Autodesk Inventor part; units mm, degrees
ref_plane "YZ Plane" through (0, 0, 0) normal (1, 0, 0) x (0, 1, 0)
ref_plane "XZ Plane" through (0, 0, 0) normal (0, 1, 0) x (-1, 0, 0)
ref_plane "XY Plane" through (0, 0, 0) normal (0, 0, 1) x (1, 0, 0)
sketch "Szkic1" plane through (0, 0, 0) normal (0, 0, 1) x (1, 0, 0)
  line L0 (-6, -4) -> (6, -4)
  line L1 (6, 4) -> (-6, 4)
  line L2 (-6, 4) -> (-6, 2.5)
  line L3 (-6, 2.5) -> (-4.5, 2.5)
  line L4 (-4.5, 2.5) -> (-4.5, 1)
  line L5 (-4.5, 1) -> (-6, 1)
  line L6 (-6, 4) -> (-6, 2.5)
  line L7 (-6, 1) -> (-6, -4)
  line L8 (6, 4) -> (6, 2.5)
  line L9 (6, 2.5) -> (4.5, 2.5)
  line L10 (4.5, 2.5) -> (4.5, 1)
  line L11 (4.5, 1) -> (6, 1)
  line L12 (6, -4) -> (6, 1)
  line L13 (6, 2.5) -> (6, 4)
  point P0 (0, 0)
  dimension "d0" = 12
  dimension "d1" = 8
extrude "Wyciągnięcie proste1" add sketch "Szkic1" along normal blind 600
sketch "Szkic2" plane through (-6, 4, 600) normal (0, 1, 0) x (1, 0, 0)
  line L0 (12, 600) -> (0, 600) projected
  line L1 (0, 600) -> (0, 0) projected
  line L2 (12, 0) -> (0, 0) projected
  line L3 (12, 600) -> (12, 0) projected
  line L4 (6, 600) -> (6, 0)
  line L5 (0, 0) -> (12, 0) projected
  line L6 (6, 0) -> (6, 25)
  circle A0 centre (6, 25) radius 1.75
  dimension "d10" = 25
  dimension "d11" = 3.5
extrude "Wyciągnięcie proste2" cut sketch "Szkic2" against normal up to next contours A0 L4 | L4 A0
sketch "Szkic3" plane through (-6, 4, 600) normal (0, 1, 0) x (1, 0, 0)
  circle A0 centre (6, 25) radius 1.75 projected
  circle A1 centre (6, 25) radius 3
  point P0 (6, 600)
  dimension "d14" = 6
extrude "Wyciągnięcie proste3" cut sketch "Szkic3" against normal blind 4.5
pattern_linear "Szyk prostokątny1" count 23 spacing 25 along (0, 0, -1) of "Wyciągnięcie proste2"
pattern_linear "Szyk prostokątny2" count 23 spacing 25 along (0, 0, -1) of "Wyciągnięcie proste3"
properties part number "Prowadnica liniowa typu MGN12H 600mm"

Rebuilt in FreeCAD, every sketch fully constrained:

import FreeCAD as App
import Part
import Sketcher

doc = App.newDocument("Part")
body = doc.addObject("PartDesign::Body", "Body")

# Sketch on XY plane
sketch1 = body.newObject("Sketcher::SketchObject", "Sketch")
sketch1.AttachmentSupport = (doc.getObject("XY_Plane"), [""])
sketch1.MapMode = "FlatFace"
sketch1.addGeometry(Part.LineSegment(App.Vector(-6, 1, 0), App.Vector(-6, -4, 0)), False)
sketch1.addGeometry(Part.LineSegment(App.Vector(-6, -4, 0), App.Vector(6, -4, 0)), False)
sketch1.addGeometry(Part.LineSegment(App.Vector(6, -4, 0), App.Vector(6, 1, 0)), False)
sketch1.addGeometry(Part.LineSegment(App.Vector(6, 1, 0), App.Vector(4.5, 1, 0)), False)
sketch1.addGeometry(Part.LineSegment(App.Vector(4.5, 1, 0), App.Vector(4.5, 2.5, 0)), False)
sketch1.addGeometry(Part.LineSegment(App.Vector(4.5, 2.5, 0), App.Vector(6, 2.5, 0)), False)
sketch1.addGeometry(Part.LineSegment(App.Vector(6, 2.5, 0), App.Vector(6, 4, 0)), False)
sketch1.addGeometry(Part.LineSegment(App.Vector(6, 4, 0), App.Vector(-6, 4, 0)), False)
sketch1.addGeometry(Part.LineSegment(App.Vector(-6, 4, 0), App.Vector(-6, 2.5, 0)), False)
sketch1.addGeometry(Part.LineSegment(App.Vector(-6, 2.5, 0), App.Vector(-4.5, 2.5, 0)), False)
sketch1.addGeometry(Part.LineSegment(App.Vector(-4.5, 2.5, 0), App.Vector(-4.5, 1, 0)), False)
sketch1.addGeometry(Part.LineSegment(App.Vector(-4.5, 1, 0), App.Vector(-6, 1, 0)), False)
sketch1.addConstraint(Sketcher.Constraint("Coincident", 0, 2, 1, 1))
sketch1.addConstraint(Sketcher.Constraint("Coincident", 1, 2, 2, 1))
sketch1.addConstraint(Sketcher.Constraint("Coincident", 2, 2, 3, 1))
sketch1.addConstraint(Sketcher.Constraint("Coincident", 3, 2, 4, 1))
sketch1.addConstraint(Sketcher.Constraint("Coincident", 4, 2, 5, 1))
sketch1.addConstraint(Sketcher.Constraint("Coincident", 5, 2, 6, 1))
sketch1.addConstraint(Sketcher.Constraint("Coincident", 6, 2, 7, 1))
sketch1.addConstraint(Sketcher.Constraint("Coincident", 7, 2, 8, 1))
sketch1.addConstraint(Sketcher.Constraint("Coincident", 8, 2, 9, 1))
sketch1.addConstraint(Sketcher.Constraint("Coincident", 9, 2, 10, 1))
sketch1.addConstraint(Sketcher.Constraint("Coincident", 10, 2, 11, 1))
sketch1.addConstraint(Sketcher.Constraint("Coincident", 11, 2, 0, 1))
sketch1.addConstraint(Sketcher.Constraint("Vertical", 0))
sketch1.addConstraint(Sketcher.Constraint("Horizontal", 1))
sketch1.addConstraint(Sketcher.Constraint("Vertical", 2))
sketch1.addConstraint(Sketcher.Constraint("Horizontal", 3))
sketch1.addConstraint(Sketcher.Constraint("Vertical", 4))
sketch1.addConstraint(Sketcher.Constraint("Horizontal", 5))
sketch1.addConstraint(Sketcher.Constraint("Vertical", 6))
sketch1.addConstraint(Sketcher.Constraint("Horizontal", 7))
sketch1.addConstraint(Sketcher.Constraint("Vertical", 8))
sketch1.addConstraint(Sketcher.Constraint("Horizontal", 9))
sketch1.addConstraint(Sketcher.Constraint("Vertical", 10))
sketch1.addConstraint(Sketcher.Constraint("Horizontal", 11))
sketch1.addConstraint(Sketcher.Constraint("Symmetric", 0, 2, 6, 2, -1, 1))
sketch1.addConstraint(Sketcher.Constraint("Symmetric", 5, 2, 8, 2, -2))
sketch1.addConstraint(Sketcher.Constraint("Symmetric", 3, 2, 10, 2, -2))
sketch1.addConstraint(Sketcher.Constraint("Vertical", 2, 2, 5, 2))
sketch1.addConstraint(Sketcher.Constraint("Equal", 11, 4))
sketch1.addConstraint(Sketcher.Constraint("Equal", 4, 6))
sketch1.addConstraint(Sketcher.Constraint("DistanceX", 1, 1, 1, 2, 12.0))
sketch1.addConstraint(Sketcher.Constraint("DistanceY", 1, 2, 6, 2, 8.0))
sketch1.addConstraint(Sketcher.Constraint("DistanceY", 0, 2, 0, 1, 5.0))
pad1 = body.newObject("PartDesign::Pad", "Pad")
pad1.Profile = sketch1
pad1.Length = 600

# Sketch on XZ plane
sketch2 = body.newObject("Sketcher::SketchObject", "Sketch001")
sketch2.AttachmentSupport = (doc.getObject("XZ_Plane"), [""])
sketch2.MapMode = "FlatFace"
sketch2.AttachmentOffset = App.Placement(App.Vector(0, 0, -4), App.Rotation())
sketch2.addGeometry(Part.Circle(App.Vector(0, 575, 0), App.Vector(0, 0, 1), 1.8), False)
sketch2.addConstraint(Sketcher.Constraint("PointOnObject", 0, 3, -2))
sketch2.addConstraint(Sketcher.Constraint("Diameter", 0, 3.5))
sketch2.addConstraint(Sketcher.Constraint("DistanceY", -1, 1, 0, 3, 575.0))
pocket1 = body.newObject("PartDesign::Pocket", "Pocket")
pocket1.Profile = sketch2
pocket1.Type = "UpToFirst"
pocket1.Reversed = True

# Sketch on XZ plane
sketch3 = body.newObject("Sketcher::SketchObject", "Sketch002")
sketch3.AttachmentSupport = (doc.getObject("XZ_Plane"), [""])
sketch3.MapMode = "FlatFace"
sketch3.AttachmentOffset = App.Placement(App.Vector(0, 0, -4), App.Rotation())
sketch3.addGeometry(Part.Circle(App.Vector(0, 575, 0), App.Vector(0, 0, 1), 3), False)
sketch3.addGeometry(Part.Circle(App.Vector(0, 575, 0), App.Vector(0, 0, 1), 1.8), False)
sketch3.addConstraint(Sketcher.Constraint("Coincident", 1, 3, 0, 3))
sketch3.addConstraint(Sketcher.Constraint("PointOnObject", 0, 3, -2))
sketch3.addConstraint(Sketcher.Constraint("Diameter", 0, 6.0))
sketch3.addConstraint(Sketcher.Constraint("Diameter", 1, 3.5))
sketch3.addConstraint(Sketcher.Constraint("DistanceY", -1, 1, 0, 3, 575.0))
pocket2 = body.newObject("PartDesign::Pocket", "Pocket001")
pocket2.Profile = sketch3
pocket2.Length = 4.5
pocket2.Reversed = True
doc.recompute()

linearpattern = body.newObject("PartDesign::LinearPattern", "LinearPattern")
linearpattern.Originals = [pocket1]
linearpattern.Direction = (doc.getObject("Z_Axis"), [""])
linearpattern.Mode = "offset"
linearpattern.Offset = 25
linearpattern.Occurrences = 23
linearpattern.Reversed = True
body.Tip = linearpattern
doc.recompute()

linearpattern2 = body.newObject("PartDesign::LinearPattern", "LinearPattern001")
linearpattern2.Originals = [pocket2]
linearpattern2.Direction = (doc.getObject("Z_Axis"), [""])
linearpattern2.Mode = "offset"
linearpattern2.Offset = 25
linearpattern2.Occurrences = 23
linearpattern2.Reversed = True
body.Tip = linearpattern2

doc.recompute()
